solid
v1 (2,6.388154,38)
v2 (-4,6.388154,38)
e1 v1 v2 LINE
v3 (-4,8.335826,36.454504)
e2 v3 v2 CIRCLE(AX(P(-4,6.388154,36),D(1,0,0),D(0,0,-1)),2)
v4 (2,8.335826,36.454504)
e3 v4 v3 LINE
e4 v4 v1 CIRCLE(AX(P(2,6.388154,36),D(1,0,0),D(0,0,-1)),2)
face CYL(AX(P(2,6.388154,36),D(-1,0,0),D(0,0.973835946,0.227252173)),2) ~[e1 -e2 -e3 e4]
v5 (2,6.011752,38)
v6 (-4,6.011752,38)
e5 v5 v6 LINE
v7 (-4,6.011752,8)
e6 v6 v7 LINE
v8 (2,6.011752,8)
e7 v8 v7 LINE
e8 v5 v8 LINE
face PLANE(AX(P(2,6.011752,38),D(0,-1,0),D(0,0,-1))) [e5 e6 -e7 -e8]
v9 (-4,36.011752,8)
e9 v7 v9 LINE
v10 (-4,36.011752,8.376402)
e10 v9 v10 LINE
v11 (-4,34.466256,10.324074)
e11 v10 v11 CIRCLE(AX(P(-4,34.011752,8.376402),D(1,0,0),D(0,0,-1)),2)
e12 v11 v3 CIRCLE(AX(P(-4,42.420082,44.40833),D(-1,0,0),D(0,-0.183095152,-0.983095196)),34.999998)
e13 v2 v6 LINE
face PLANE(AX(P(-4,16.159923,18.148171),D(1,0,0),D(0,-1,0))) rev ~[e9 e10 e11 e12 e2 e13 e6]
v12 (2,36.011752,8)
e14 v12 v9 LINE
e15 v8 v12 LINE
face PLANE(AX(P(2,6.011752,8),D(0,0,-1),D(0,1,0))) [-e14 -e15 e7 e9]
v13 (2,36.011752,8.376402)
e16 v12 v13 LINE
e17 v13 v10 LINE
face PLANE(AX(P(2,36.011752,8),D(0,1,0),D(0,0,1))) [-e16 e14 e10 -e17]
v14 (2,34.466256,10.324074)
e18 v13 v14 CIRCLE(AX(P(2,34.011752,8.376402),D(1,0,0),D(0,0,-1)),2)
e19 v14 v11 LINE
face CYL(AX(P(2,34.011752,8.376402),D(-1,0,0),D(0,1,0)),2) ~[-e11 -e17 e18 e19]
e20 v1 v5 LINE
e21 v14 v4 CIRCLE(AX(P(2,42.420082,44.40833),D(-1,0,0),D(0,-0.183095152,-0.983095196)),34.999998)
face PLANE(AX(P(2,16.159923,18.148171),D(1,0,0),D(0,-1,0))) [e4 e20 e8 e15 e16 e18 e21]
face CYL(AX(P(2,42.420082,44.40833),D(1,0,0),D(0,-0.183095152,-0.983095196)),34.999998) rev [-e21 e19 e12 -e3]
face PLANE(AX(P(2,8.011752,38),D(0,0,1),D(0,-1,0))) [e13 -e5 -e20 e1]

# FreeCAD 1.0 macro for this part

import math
import FreeCAD as App
import Part
import Sketcher


def edges_at(feature, points):
    """Names of the edges that pass closest to the given points."""
    edges = feature.Shape.Edges
    near = lambda p: min(range(len(edges)), key=lambda i: edges[i].distToShape(Part.Vertex(*p))[0])
    return sorted({f"Edge{near(p) + 1}" for p in points})

doc = App.newDocument("Part")
body = doc.addObject("PartDesign::Body", "Body")

# Sketch on YZ plane
sketch1 = body.newObject("Sketcher::SketchObject", "Sketch")
sketch1.AttachmentSupport = (doc.getObject("YZ_Plane"), [""])
sketch1.MapMode = "FlatFace"
sketch1.addGeometry(Part.LineSegment(App.Vector(36, 0, 0), App.Vector(6, 0, 0)), False)
sketch1.addGeometry(Part.LineSegment(App.Vector(6, 0, 0), App.Vector(6, -30, 0)), False)
sketch1.addGeometry(Part.LineSegment(App.Vector(6, -30, 0), App.Vector(8, -30, 0)), False)
sketch1.addGeometry(Part.ArcOfCircle(Part.Circle(App.Vector(42.4, -36.4, 0), App.Vector(0, 0, 1), 35), math.radians(101), math.radians(169)), False)
sketch1.addGeometry(Part.LineSegment(App.Vector(36, -2, 0), App.Vector(36, 0, 0)), False)
sketch1.addConstraint(Sketcher.Constraint("Coincident", 0, 2, 1, 1))
sketch1.addConstraint(Sketcher.Constraint("Coincident", 1, 2, 2, 1))
sketch1.addConstraint(Sketcher.Constraint("Coincident", 2, 2, 3, 2))
sketch1.addConstraint(Sketcher.Constraint("Coincident", 3, 1, 4, 1))
sketch1.addConstraint(Sketcher.Constraint("Coincident", 4, 2, 0, 1))
sketch1.addConstraint(Sketcher.Constraint("Horizontal", 0))
sketch1.addConstraint(Sketcher.Constraint("Vertical", 1))
sketch1.addConstraint(Sketcher.Constraint("Horizontal", 2))
sketch1.addConstraint(Sketcher.Constraint("Vertical", 4))
sketch1.addConstraint(Sketcher.Constraint("PointOnObject", 0, 2, -1))
sketch1.addConstraint(Sketcher.Constraint("Equal", 0, 1))
sketch1.addConstraint(Sketcher.Constraint("Equal", 2, 4))
sketch1.addConstraint(Sketcher.Constraint("Radius", 3, 34.999998))
sketch1.addConstraint(Sketcher.Constraint("DistanceX", 0, 2, 0, 1, 30.0))
sketch1.addConstraint(Sketcher.Constraint("DistanceX", 2, 1, 2, 2, 2.0))
sketch1.addConstraint(Sketcher.Constraint("DistanceX", -1, 1, 3, 3, 42.420082))
pad1 = body.newObject("PartDesign::Pad", "Pad")
pad1.Profile = sketch1
pad1.Length = 6
doc.recompute()

fillet = body.newObject("PartDesign::Fillet", "Fillet")
fillet.Base = (pad1, edges_at(pad1, [(3, 36.012, -2)]))
fillet.Radius = 2
doc.recompute()

fillet2 = body.newObject("PartDesign::Fillet", "Fillet001")
fillet2.Base = (fillet, edges_at(fillet, [(3, 8.012, -30)]))
fillet2.Radius = 2
body2 = doc.addObject("PartDesign::Body", "Body001")
doc.recompute()

body.Placement = App.Placement(App.Vector(2, 0, 8), App.Rotation(App.Vector(0, 1, 0), 180))
boolean = body2.newObject("PartDesign::Boolean", "Boolean")
boolean.Type = "Fuse"
boolean.addObjects([body])

doc.recompute()
